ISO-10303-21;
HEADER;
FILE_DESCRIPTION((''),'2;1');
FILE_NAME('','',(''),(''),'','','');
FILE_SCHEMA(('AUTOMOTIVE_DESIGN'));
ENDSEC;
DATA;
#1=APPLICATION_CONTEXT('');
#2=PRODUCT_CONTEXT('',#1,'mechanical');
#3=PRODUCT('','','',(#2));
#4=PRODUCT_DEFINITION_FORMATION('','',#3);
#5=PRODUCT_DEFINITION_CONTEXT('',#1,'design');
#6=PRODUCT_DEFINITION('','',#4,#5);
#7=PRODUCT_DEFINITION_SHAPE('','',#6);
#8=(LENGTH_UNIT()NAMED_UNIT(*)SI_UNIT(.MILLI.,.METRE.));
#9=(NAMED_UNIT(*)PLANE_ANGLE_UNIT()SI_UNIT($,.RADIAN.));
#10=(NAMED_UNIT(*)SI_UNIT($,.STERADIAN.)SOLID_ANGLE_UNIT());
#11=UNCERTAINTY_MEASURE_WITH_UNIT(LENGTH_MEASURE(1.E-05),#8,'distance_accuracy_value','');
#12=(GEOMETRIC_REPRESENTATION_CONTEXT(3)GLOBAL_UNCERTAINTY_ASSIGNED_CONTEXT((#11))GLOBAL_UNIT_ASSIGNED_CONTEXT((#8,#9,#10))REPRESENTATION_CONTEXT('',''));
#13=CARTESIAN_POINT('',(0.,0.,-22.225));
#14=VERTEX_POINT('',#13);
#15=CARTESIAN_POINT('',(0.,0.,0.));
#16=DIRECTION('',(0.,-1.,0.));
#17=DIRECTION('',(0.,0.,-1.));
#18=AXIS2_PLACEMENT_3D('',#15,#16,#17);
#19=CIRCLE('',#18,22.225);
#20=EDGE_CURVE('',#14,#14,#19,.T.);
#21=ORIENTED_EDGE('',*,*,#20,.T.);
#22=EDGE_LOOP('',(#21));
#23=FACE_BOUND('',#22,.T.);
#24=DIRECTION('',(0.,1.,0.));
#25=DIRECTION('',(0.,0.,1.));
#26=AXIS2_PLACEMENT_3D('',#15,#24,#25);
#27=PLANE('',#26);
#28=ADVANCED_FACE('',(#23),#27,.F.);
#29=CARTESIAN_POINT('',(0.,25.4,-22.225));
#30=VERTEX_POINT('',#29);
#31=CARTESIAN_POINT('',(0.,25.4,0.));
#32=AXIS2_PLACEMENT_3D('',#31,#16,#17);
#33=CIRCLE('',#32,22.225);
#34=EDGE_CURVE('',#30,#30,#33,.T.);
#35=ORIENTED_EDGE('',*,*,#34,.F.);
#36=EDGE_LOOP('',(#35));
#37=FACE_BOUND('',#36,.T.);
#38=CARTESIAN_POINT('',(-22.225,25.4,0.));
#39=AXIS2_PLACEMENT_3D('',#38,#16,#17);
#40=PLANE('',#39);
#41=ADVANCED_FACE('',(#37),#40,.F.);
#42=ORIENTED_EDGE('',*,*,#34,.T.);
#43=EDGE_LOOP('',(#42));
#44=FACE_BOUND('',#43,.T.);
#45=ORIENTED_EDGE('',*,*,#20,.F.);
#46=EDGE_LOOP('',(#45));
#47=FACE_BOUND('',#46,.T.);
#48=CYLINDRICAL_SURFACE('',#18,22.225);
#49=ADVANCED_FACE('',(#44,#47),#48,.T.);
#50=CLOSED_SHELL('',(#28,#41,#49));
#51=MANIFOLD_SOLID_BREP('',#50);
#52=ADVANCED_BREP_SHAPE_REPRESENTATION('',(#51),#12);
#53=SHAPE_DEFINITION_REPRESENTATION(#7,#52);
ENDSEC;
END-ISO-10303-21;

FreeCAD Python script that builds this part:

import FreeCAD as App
import Part
import Sketcher
from FreeCAD import Vector
Q = App.Units.Quantity

doc = App.newDocument("Part")
body = doc.addObject("PartDesign::Body", "Body")

# Sketch on XY plane
sketch1 = body.newObject("Sketcher::SketchObject", "Sketch")
sketch1.AttachmentSupport = (doc.getObject("XY_Plane"), [""])
sketch1.MapMode = "FlatFace"
sketch1.addGeometry([
    Part.LineSegment(Vector(-22.225, 25.4, 0), Vector(-22.225, 0, 0)),
    Part.LineSegment(Vector(-22.225, 0, 0), Vector(0, 0, 0)),
    Part.LineSegment(Vector(0, 0, 0), Vector(0, 25.4, 0)),
    Part.LineSegment(Vector(0, 25.4, 0), Vector(-22.225, 25.4, 0)),
], False)
sketch1.addConstraint([
    Sketcher.Constraint("Coincident", 0, 2, 1, 1),
    Sketcher.Constraint("Coincident", 1, 2, 2, 1),
    Sketcher.Constraint("Coincident", 2, 2, 3, 1),
    Sketcher.Constraint("Coincident", 3, 2, 0, 1),
    Sketcher.Constraint("Vertical", 0),
    Sketcher.Constraint("Horizontal", 1),
    Sketcher.Constraint("Vertical", 2),
    Sketcher.Constraint("Horizontal", 3),
    Sketcher.Constraint("Coincident", 1, 2, -1, 1),
    Sketcher.Constraint("DistanceY", 0, 2, 0, 1, Q("1 in")),
    Sketcher.Constraint("DistanceX", 1, 1, 1, 2, Q("0.875 in")),
])
revolution = body.newObject("PartDesign::Revolution", "Revolution")
revolution.Profile = sketch1
revolution.ReferenceAxis = (sketch1, ["V_Axis"])
revolution.Angle = 360

doc.recompute()
